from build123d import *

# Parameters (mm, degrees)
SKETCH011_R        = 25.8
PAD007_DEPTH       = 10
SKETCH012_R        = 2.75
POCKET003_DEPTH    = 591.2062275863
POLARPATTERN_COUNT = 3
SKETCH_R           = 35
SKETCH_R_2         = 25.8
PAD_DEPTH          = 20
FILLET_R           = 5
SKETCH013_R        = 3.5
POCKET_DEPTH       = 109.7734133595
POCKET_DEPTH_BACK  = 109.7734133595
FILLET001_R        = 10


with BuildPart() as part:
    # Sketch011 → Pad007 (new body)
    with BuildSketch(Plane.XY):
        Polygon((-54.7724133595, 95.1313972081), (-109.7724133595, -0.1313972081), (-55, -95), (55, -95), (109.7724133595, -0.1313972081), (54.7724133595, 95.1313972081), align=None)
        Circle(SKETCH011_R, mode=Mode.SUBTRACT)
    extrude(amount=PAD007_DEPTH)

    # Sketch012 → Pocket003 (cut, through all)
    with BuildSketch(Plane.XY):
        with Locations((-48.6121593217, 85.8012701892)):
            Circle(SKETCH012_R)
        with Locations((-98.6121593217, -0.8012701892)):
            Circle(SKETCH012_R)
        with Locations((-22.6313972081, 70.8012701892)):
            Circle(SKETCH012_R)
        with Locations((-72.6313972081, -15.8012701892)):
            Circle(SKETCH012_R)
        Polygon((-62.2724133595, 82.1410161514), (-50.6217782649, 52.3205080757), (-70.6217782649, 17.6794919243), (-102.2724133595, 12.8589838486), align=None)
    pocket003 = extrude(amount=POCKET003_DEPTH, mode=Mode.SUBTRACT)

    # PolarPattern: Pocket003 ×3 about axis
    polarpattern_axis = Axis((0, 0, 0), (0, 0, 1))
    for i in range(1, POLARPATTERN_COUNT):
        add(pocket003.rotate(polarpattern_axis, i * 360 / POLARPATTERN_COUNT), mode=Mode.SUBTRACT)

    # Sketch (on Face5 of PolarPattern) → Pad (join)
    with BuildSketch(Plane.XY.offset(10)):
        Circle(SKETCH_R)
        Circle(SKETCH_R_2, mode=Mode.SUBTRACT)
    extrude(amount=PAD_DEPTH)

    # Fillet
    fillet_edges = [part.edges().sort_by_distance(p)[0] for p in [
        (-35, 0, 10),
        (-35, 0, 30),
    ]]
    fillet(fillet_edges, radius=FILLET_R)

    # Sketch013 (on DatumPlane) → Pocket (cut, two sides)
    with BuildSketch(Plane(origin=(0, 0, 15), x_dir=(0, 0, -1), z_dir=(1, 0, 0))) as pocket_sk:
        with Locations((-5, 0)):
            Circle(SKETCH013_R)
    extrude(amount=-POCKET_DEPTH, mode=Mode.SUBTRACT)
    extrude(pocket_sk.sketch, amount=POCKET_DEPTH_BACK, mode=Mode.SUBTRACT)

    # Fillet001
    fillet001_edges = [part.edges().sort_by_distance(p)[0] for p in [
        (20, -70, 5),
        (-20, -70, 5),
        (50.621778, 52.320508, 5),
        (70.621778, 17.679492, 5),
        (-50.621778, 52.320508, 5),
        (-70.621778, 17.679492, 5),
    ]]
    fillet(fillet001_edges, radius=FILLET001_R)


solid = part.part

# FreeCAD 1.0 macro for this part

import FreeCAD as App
import Part
import Sketcher
Q = App.Units.Quantity


def edges_at(feature, points):
    """Names of the edges that pass closest to the given points."""
    edges = feature.Shape.Edges
    near = lambda p: min(range(len(edges)), key=lambda i: edges[i].distToShape(Part.Vertex(*p))[0])
    return sorted({f"Edge{near(p) + 1}" for p in points})

doc = App.newDocument("Part")
body = doc.addObject("PartDesign::Body", "Body")

# Sketch on XY plane
sketch1 = body.newObject("Sketcher::SketchObject", "Sketch")
sketch1.AttachmentSupport = (doc.getObject("XY_Plane"), [""])
sketch1.MapMode = "FlatFace"
sketch1.addGeometry([
    Part.LineSegment(App.Vector(-55, 95, 0), App.Vector(-110, 0, 0)),  # 0
    Part.LineSegment(App.Vector(-110, 0, 0), App.Vector(-55, -95, 0)),  # 1
    Part.LineSegment(App.Vector(-55, -95, 0), App.Vector(55, -95, 0)),  # 2
    Part.LineSegment(App.Vector(55, -95, 0), App.Vector(110, 0, 0)),  # 3
    Part.LineSegment(App.Vector(110, 0, 0), App.Vector(55, 95, 0)),  # 4
    Part.LineSegment(App.Vector(55, 95, 0), App.Vector(-55, 95, 0)),  # 5
    Part.Circle(App.Vector(0, 0, 0), App.Vector(0, 0, 1), 26),  # 6
], False)
sketch1.addConstraint([
    Sketcher.Constraint("Coincident", 0, 2, 1, 1),
    Sketcher.Constraint("Coincident", 1, 2, 2, 1),
    Sketcher.Constraint("Coincident", 2, 2, 3, 1),
    Sketcher.Constraint("Coincident", 3, 2, 4, 1),
    Sketcher.Constraint("Coincident", 4, 2, 5, 1),
    Sketcher.Constraint("Coincident", 5, 2, 0, 1),
    Sketcher.Constraint("Horizontal", 2),
    Sketcher.Constraint("Horizontal", 5),
    Sketcher.Constraint("Coincident", 6, 3, -1, 1),
    Sketcher.Constraint("Symmetric", 0, 2, 3, 2, -2),
    Sketcher.Constraint("Parallel", 0, 3),
    Sketcher.Constraint("Parallel", 1, 4),
    Sketcher.Constraint("Equal", 1, 3),
    Sketcher.Constraint("Diameter", 6, 51.6),
    Sketcher.Constraint("DistanceX", 2, 1, 2, 2, 110.0),
    Sketcher.Constraint("Angle", 0, Q("-120 deg")),
    Sketcher.Constraint("Distance", 0, 110.0),
    Sketcher.Constraint("DistanceY", 1, 2, -1, 1, 95.0),
    Sketcher.Constraint("DistanceX", 5, 2, 5, 1, 109.544827),
])
pad1 = body.newObject("PartDesign::Pad", "Pad")
pad1.Profile = sketch1
pad1.Length = 10

# Sketch on XY plane
sketch2 = body.newObject("Sketcher::SketchObject", "Sketch001")
sketch2.AttachmentSupport = (doc.getObject("XY_Plane"), [""])
sketch2.MapMode = "FlatFace"
sketch2.addGeometry([
    Part.Circle(App.Vector(-48.6, 85.8, 0), App.Vector(0, 0, 1), 2.8),  # 0
    Part.Circle(App.Vector(-98.6, -0.8, 0), App.Vector(0, 0, 1), 2.8),  # 1
    Part.Circle(App.Vector(-22.6, 70.8, 0), App.Vector(0, 0, 1), 2.8),  # 2
    Part.Circle(App.Vector(-72.6, -15.8, 0), App.Vector(0, 0, 1), 2.8),  # 3
    Part.LineSegment(App.Vector(-50.6, 52.3, 0), App.Vector(-62.3, 82.1, 0)),  # 4
    Part.LineSegment(App.Vector(-62.3, 82.1, 0), App.Vector(-102.3, 12.9, 0)),  # 5
    Part.LineSegment(App.Vector(-102.3, 12.9, 0), App.Vector(-70.6, 17.7, 0)),  # 6
    Part.LineSegment(App.Vector(-70.6, 17.7, 0), App.Vector(-50.6, 52.3, 0)),  # 7
], False)
sketch2.addConstraint([
    Sketcher.Constraint("Coincident", 4, 2, 5, 1),
    Sketcher.Constraint("Coincident", 5, 2, 6, 1),
    Sketcher.Constraint("Coincident", 6, 2, 7, 1),
    Sketcher.Constraint("Coincident", 7, 2, 4, 1),
    Sketcher.Constraint("Equal", 0, 1),
    Sketcher.Constraint("Equal", 1, 2),
    Sketcher.Constraint("Equal", 2, 3),
    Sketcher.Constraint("Parallel", 5, 7),
    Sketcher.Constraint("Equal", 4, 6),
    Sketcher.Constraint("Diameter", 0, 5.5),
    Sketcher.Constraint("Angle", 5, Q("-120 deg")),
    Sketcher.Constraint("Distance", 5, 80.0),
    Sketcher.Constraint("Distance", 7, 40.0),
    Sketcher.Constraint("DistanceX", 1, 3, 0, 3, 50.0),
    Sketcher.Constraint("DistanceY", 2, 3, 0, 3, 15.0),
    Sketcher.Constraint("DistanceY", 3, 3, 1, 3, 15.0),
    Sketcher.Constraint("DistanceX", 3, 3, 2, 3, 50.0),
    Sketcher.Constraint("Distance", 4, 32.015621),
    Sketcher.Constraint("DistanceX", 0, 3, -1, 1, 48.612159),
    Sketcher.Constraint("DistanceY", -1, 1, 0, 3, 85.80127),
    Sketcher.Constraint("DistanceY", 1, 3, -1, 1, 0.80127),
    Sketcher.Constraint("DistanceX", 6, 2, -1, 1, 70.621778),
    Sketcher.Constraint("DistanceY", -1, 1, 6, 2, 17.679492),
    Sketcher.Constraint("DistanceX", 3, 3, 6, 2, 2.009619),
])
pocket1 = body.newObject("PartDesign::Pocket", "Pocket")
pocket1.Profile = sketch2
pocket1.Type = "ThroughAll"
pocket1.Reversed = True
doc.recompute()

polarpattern = body.newObject("PartDesign::PolarPattern", "PolarPattern")
polarpattern.Originals = [pocket1]
polarpattern.Axis = (doc.getObject("Z_Axis"), [""])
polarpattern.Angle = 360
polarpattern.Occurrences = 3
body.Tip = polarpattern

# Sketch on XY plane
sketch3 = body.newObject("Sketcher::SketchObject", "Sketch002")
sketch3.AttachmentSupport = (doc.getObject("XY_Plane"), [""])
sketch3.MapMode = "FlatFace"
sketch3.AttachmentOffset = App.Placement(App.Vector(0, 0, 10), App.Rotation())
sketch3.addGeometry([
    Part.Circle(App.Vector(0, 0, 0), App.Vector(0, 0, 1), 35),
    Part.Circle(App.Vector(0, 0, 0), App.Vector(0, 0, 1), 26),
], False)
sketch3.addConstraint([
    Sketcher.Constraint("Coincident", 0, 3, -1, 1),
    Sketcher.Constraint("Coincident", 1, 3, -1, 1),
    Sketcher.Constraint("Diameter", 0, 70.0),
    Sketcher.Constraint("Diameter", 1, 51.6),
])
pad2 = body.newObject("PartDesign::Pad", "Pad001")
pad2.Profile = sketch3
pad2.Length = 20
doc.recompute()

fillet = body.newObject("PartDesign::Fillet", "Fillet")
fillet.Base = (pad2, edges_at(pad2, [(-35, 0, 10), (-35, 0, 30)]))
fillet.Radius = 5

# Sketch on YZ plane
sketch4 = body.newObject("Sketcher::SketchObject", "Sketch003")
sketch4.AttachmentSupport = (doc.getObject("YZ_Plane"), [""])
sketch4.MapMode = "FlatFace"
sketch4.addGeometry(Part.Circle(App.Vector(0, 20, 0), App.Vector(0, 0, 1), 3.5), False)
sketch4.addConstraint([
    Sketcher.Constraint("PointOnObject", 0, 3, -2),
    Sketcher.Constraint("Diameter", 0, 7.0),
    Sketcher.Constraint("DistanceY", -1, 1, 0, 3, 20.0),
])
pocket2 = body.newObject("PartDesign::Pocket", "Pocket001")
pocket2.Profile = sketch4
pocket2.Type = "ThroughAll"
pocket2.Midplane = True
doc.recompute()

fillet2 = body.newObject("PartDesign::Fillet", "Fillet001")
fillet2.Base = (pocket2, edges_at(pocket2, [
    (20, -70, 5),
    (-20, -70, 5),
    (50.622, 52.321, 5),
    (70.622, 17.679, 5),
    (-50.622, 52.321, 5),
    (-70.622, 17.679, 5),
]))
fillet2.Radius = 10

doc.recompute()
